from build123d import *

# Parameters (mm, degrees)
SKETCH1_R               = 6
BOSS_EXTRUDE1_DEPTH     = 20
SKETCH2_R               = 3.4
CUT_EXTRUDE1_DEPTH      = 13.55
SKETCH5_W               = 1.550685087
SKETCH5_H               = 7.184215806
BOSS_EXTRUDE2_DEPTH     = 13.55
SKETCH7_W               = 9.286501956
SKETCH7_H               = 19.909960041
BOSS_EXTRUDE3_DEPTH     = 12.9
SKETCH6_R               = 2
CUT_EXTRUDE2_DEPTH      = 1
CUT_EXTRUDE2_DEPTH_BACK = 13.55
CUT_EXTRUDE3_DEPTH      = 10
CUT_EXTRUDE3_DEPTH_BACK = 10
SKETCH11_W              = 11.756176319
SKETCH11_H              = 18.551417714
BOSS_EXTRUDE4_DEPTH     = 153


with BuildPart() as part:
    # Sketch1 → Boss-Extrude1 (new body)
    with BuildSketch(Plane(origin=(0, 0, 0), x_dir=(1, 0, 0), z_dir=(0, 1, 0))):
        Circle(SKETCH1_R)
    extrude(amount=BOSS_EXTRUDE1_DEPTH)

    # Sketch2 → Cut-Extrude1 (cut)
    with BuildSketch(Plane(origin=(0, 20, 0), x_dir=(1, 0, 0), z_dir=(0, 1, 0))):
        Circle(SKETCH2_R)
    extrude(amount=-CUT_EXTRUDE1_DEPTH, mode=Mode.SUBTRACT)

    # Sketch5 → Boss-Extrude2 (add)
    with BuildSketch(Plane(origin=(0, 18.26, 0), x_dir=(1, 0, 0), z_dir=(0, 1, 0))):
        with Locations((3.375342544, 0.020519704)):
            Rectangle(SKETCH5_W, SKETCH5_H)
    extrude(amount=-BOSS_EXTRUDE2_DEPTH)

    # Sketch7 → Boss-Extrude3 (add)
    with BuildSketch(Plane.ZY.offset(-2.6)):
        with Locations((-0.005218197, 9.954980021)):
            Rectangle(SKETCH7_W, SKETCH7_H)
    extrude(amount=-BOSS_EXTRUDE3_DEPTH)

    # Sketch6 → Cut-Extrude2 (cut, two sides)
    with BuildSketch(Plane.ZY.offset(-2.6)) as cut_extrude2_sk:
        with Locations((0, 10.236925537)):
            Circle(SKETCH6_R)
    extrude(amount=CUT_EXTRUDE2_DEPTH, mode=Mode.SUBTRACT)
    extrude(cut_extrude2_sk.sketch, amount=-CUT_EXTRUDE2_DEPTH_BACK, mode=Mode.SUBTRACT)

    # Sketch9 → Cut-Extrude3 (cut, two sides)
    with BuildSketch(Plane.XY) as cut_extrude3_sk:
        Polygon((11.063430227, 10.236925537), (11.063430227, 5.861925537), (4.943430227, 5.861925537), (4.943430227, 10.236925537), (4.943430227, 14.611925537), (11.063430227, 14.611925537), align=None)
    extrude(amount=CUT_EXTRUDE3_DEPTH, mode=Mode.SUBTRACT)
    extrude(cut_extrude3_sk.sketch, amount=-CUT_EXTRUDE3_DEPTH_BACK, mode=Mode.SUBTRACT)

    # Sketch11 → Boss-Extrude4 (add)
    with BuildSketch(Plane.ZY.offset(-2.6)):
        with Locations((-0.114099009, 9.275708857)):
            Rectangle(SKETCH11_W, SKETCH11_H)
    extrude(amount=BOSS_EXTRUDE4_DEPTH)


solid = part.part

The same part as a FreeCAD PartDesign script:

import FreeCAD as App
import Part
import Sketcher
from FreeCAD import Vector
Q = App.Units.Quantity

doc = App.newDocument("Part")
params = doc.addObject("Spreadsheet::Sheet", "Params")
for row, (alias, value) in enumerate([
    ("sketch1_diameter", "12 mm"),
    ("pad1_length", "20 mm"),
    ("sketch2_diameter", "6.8 mm"),
    ("pocket1_length", "13.55 mm"),
    ("pad2_length", "13.55 mm"),
    ("pad3_length", "12.9 mm"),
    ("sketch5_diameter", "4 mm"),
    ("pocket2_length", "1 mm"),
    ("pocket2_length2", "13.55 mm"),
    ("sketch6_width", "6.12 mm"),
    ("sketch6_height", "8.75 mm"),
    ("pad4_length", "153 mm"),
], start=1):
    params.set(f"A{row}", alias)
    params.set(f"B{row}", "=" + value)
    params.setAlias(f"B{row}", alias)

body = doc.addObject("PartDesign::Body", "Body")

# Sketch on XZ plane
sketch1 = body.newObject("Sketcher::SketchObject", "Sketch")
sketch1.AttachmentSupport = (doc.getObject("XZ_Plane"), [""])
sketch1.MapMode = "FlatFace"
sketch1.addGeometry(Part.Circle(Vector(0, 0, 0), Vector(0, 0, 1), 6), False)
sketch1.addConstraint([
    Sketcher.Constraint("Coincident", 0, 3, -1, 1),
    Sketcher.Constraint("Diameter", 0, Q("12 mm")),
])
sketch1.setExpression("Constraints[1]", "Params.sketch1_diameter")
pad1 = body.newObject("PartDesign::Pad", "Pad")
pad1.Profile = sketch1
pad1.setExpression("Length", "Params.pad1_length")
pad1.Reversed = True

# Sketch on XZ plane
sketch2 = body.newObject("Sketcher::SketchObject", "Sketch001")
sketch2.AttachmentSupport = (doc.getObject("XZ_Plane"), [""])
sketch2.MapMode = "FlatFace"
sketch2.AttachmentOffset = App.Placement(Vector(0, 0, -20), App.Rotation())
sketch2.addGeometry(Part.Circle(Vector(0, 0, 0), Vector(0, 0, 1), 3.4), False)
sketch2.addConstraint([
    Sketcher.Constraint("Coincident", 0, 3, -1, 1),
    Sketcher.Constraint("Diameter", 0, Q("6.8 mm")),
])
sketch2.setExpression("Constraints[1]", "Params.sketch2_diameter")
pocket1 = body.newObject("PartDesign::Pocket", "Pocket")
pocket1.Profile = sketch2
pocket1.setExpression("Length", "Params.pocket1_length")
pocket1.Reversed = True

# Sketch on XZ plane
sketch3 = body.newObject("Sketcher::SketchObject", "Sketch002")
sketch3.AttachmentSupport = (doc.getObject("XZ_Plane"), [""])
sketch3.MapMode = "FlatFace"
sketch3.AttachmentOffset = App.Placement(Vector(0, 0, -18.26), App.Rotation())
sketch3.addGeometry([
    Part.LineSegment(Vector(2.6, -3.6, 0), Vector(2.6, 3.6, 0)),
    Part.LineSegment(Vector(2.6, 3.6, 0), Vector(4.2, 3.6, 0)),
    Part.LineSegment(Vector(4.2, 3.6, 0), Vector(4.2, -3.6, 0)),
    Part.LineSegment(Vector(4.2, -3.6, 0), Vector(2.6, -3.6, 0)),
], False)
sketch3.addConstraint([
    Sketcher.Constraint("Coincident", 0, 2, 1, 1),
    Sketcher.Constraint("Coincident", 1, 2, 2, 1),
    Sketcher.Constraint("Coincident", 2, 2, 3, 1),
    Sketcher.Constraint("Coincident", 3, 2, 0, 1),
    Sketcher.Constraint("Vertical", 0),
    Sketcher.Constraint("Horizontal", 1),
    Sketcher.Constraint("Vertical", 2),
    Sketcher.Constraint("Horizontal", 3),
    Sketcher.Constraint("DistanceX", -1, 1, 0, 2, Q("2.6 mm")),
    Sketcher.Constraint("DistanceX", 1, 1, 1, 2, Q("1.550685 mm")),
    Sketcher.Constraint("DistanceY", 0, 1, 0, 2, Q("7.184216 mm")),
    Sketcher.Constraint("DistanceY", -1, 1, 0, 2, Q("3.571588 mm")),
])
pad2 = body.newObject("PartDesign::Pad", "Pad001")
pad2.Profile = sketch3
pad2.setExpression("Length", "Params.pad2_length")

# Sketch on YZ plane
sketch4 = body.newObject("Sketcher::SketchObject", "Sketch003")
sketch4.AttachmentSupport = (doc.getObject("YZ_Plane"), [""])
sketch4.MapMode = "FlatFace"
sketch4.AttachmentOffset = App.Placement(Vector(0, 0, 2.6), App.Rotation())
sketch4.addGeometry([
    Part.LineSegment(Vector(20, -5, 0), Vector(0, -5, 0)),
    Part.LineSegment(Vector(0, -5, 0), Vector(0, 5, 0)),
    Part.LineSegment(Vector(0, 5, 0), Vector(20, 5, 0)),
    Part.LineSegment(Vector(20, 5, 0), Vector(20, -5, 0)),
], False)
sketch4.addConstraint([
    Sketcher.Constraint("Coincident", 0, 2, 1, 1),
    Sketcher.Constraint("Coincident", 1, 2, 2, 1),
    Sketcher.Constraint("Coincident", 2, 2, 3, 1),
    Sketcher.Constraint("Coincident", 3, 2, 0, 1),
    Sketcher.Constraint("Horizontal", 0),
    Sketcher.Constraint("Vertical", 1),
    Sketcher.Constraint("Horizontal", 2),
    Sketcher.Constraint("Vertical", 3),
    Sketcher.Constraint("PointOnObject", 0, 2, -2),
    Sketcher.Constraint("DistanceY", 1, 1, 1, 2, Q("9.286502 mm")),
    Sketcher.Constraint("DistanceX", 0, 2, 0, 1, Q("19.90996 mm")),
    Sketcher.Constraint("DistanceY", 0, 2, -1, 1, Q("4.648469 mm")),
])
pad3 = body.newObject("PartDesign::Pad", "Pad002")
pad3.Profile = sketch4
pad3.setExpression("Length", "Params.pad3_length")

# Sketch on YZ plane
sketch5 = body.newObject("Sketcher::SketchObject", "Sketch004")
sketch5.AttachmentSupport = (doc.getObject("YZ_Plane"), [""])
sketch5.MapMode = "FlatFace"
sketch5.AttachmentOffset = App.Placement(Vector(0, 0, 2.6), App.Rotation())
sketch5.addGeometry(Part.Circle(Vector(10.2, 0, 0), Vector(0, 0, 1), 2), False)
sketch5.addConstraint([
    Sketcher.Constraint("PointOnObject", 0, 3, -1),
    Sketcher.Constraint("Diameter", 0, Q("4 mm")),
    Sketcher.Constraint("DistanceX", -1, 1, 0, 3, Q("10.236926 mm")),
])
sketch5.setExpression("Constraints[1]", "Params.sketch5_diameter")
pocket2 = body.newObject("PartDesign::Pocket", "Pocket001")
pocket2.Profile = sketch5
pocket2.Type = "TwoLengths"
pocket2.setExpression("Length", "Params.pocket2_length")
pocket2.setExpression("Length2", "Params.pocket2_length2")

# Sketch on XY plane
sketch6 = body.newObject("Sketcher::SketchObject", "Sketch005")
sketch6.AttachmentSupport = (doc.getObject("XY_Plane"), [""])
sketch6.MapMode = "FlatFace"
sketch6.addGeometry([
    Part.LineSegment(Vector(11, 6, 0), Vector(11, 15, 0)),
    Part.LineSegment(Vector(11, 15, 0), Vector(5, 15, 0)),
    Part.LineSegment(Vector(5, 15, 0), Vector(5, 6, 0)),
    Part.LineSegment(Vector(5, 6, 0), Vector(11, 6, 0)),
], False)
sketch6.addConstraint([
    Sketcher.Constraint("Coincident", 0, 2, 1, 1),
    Sketcher.Constraint("Coincident", 1, 2, 2, 1),
    Sketcher.Constraint("Coincident", 2, 2, 3, 1),
    Sketcher.Constraint("Coincident", 3, 2, 0, 1),
    Sketcher.Constraint("Vertical", 0),
    Sketcher.Constraint("Horizontal", 1),
    Sketcher.Constraint("Vertical", 2),
    Sketcher.Constraint("Horizontal", 3),
    Sketcher.Constraint("DistanceX", 1, 2, 1, 1, Q("6.12 mm")),
    Sketcher.Constraint("DistanceY", 0, 1, 0, 2, Q("8.75 mm")),
    Sketcher.Constraint("DistanceX", -1, 1, 0, 2, Q("11.06343 mm")),
    Sketcher.Constraint("DistanceY", -1, 1, 0, 2, Q("14.611926 mm")),
])
sketch6.setExpression("Constraints[8]", "Params.sketch6_width")
sketch6.setExpression("Constraints[9]", "Params.sketch6_height")
pocket3 = body.newObject("PartDesign::Pocket", "Pocket002")
pocket3.Profile = sketch6
pocket3.Type = "ThroughAll"
pocket3.Midplane = True

# Sketch on YZ plane
sketch7 = body.newObject("Sketcher::SketchObject", "Sketch006")
sketch7.AttachmentSupport = (doc.getObject("YZ_Plane"), [""])
sketch7.MapMode = "FlatFace"
sketch7.AttachmentOffset = App.Placement(Vector(0, 0, 2.6), App.Rotation())
sketch7.addGeometry([
    Part.LineSegment(Vector(19, -6, 0), Vector(0, -6, 0)),
    Part.LineSegment(Vector(0, -6, 0), Vector(0, 6, 0)),
    Part.LineSegment(Vector(0, 6, 0), Vector(19, 6, 0)),
    Part.LineSegment(Vector(19, 6, 0), Vector(19, -6, 0)),
], False)
sketch7.addConstraint([
    Sketcher.Constraint("Coincident", 0, 2, 1, 1),
    Sketcher.Constraint("Coincident", 1, 2, 2, 1),
    Sketcher.Constraint("Coincident", 2, 2, 3, 1),
    Sketcher.Constraint("Coincident", 3, 2, 0, 1),
    Sketcher.Constraint("Horizontal", 0),
    Sketcher.Constraint("Vertical", 1),
    Sketcher.Constraint("Horizontal", 2),
    Sketcher.Constraint("Vertical", 3),
    Sketcher.Constraint("PointOnObject", 0, 2, -2),
    Sketcher.Constraint("DistanceX", 0, 2, 0, 1, Q("18.551418 mm")),
    Sketcher.Constraint("DistanceY", 1, 1, 1, 2, Q("11.756176 mm")),
    Sketcher.Constraint("DistanceY", -1, 1, 1, 2, Q("5.763989 mm")),
])
pad4 = body.newObject("PartDesign::Pad", "Pad003")
pad4.Profile = sketch7
pad4.setExpression("Length", "Params.pad4_length")
pad4.Reversed = True

doc.recompute()
